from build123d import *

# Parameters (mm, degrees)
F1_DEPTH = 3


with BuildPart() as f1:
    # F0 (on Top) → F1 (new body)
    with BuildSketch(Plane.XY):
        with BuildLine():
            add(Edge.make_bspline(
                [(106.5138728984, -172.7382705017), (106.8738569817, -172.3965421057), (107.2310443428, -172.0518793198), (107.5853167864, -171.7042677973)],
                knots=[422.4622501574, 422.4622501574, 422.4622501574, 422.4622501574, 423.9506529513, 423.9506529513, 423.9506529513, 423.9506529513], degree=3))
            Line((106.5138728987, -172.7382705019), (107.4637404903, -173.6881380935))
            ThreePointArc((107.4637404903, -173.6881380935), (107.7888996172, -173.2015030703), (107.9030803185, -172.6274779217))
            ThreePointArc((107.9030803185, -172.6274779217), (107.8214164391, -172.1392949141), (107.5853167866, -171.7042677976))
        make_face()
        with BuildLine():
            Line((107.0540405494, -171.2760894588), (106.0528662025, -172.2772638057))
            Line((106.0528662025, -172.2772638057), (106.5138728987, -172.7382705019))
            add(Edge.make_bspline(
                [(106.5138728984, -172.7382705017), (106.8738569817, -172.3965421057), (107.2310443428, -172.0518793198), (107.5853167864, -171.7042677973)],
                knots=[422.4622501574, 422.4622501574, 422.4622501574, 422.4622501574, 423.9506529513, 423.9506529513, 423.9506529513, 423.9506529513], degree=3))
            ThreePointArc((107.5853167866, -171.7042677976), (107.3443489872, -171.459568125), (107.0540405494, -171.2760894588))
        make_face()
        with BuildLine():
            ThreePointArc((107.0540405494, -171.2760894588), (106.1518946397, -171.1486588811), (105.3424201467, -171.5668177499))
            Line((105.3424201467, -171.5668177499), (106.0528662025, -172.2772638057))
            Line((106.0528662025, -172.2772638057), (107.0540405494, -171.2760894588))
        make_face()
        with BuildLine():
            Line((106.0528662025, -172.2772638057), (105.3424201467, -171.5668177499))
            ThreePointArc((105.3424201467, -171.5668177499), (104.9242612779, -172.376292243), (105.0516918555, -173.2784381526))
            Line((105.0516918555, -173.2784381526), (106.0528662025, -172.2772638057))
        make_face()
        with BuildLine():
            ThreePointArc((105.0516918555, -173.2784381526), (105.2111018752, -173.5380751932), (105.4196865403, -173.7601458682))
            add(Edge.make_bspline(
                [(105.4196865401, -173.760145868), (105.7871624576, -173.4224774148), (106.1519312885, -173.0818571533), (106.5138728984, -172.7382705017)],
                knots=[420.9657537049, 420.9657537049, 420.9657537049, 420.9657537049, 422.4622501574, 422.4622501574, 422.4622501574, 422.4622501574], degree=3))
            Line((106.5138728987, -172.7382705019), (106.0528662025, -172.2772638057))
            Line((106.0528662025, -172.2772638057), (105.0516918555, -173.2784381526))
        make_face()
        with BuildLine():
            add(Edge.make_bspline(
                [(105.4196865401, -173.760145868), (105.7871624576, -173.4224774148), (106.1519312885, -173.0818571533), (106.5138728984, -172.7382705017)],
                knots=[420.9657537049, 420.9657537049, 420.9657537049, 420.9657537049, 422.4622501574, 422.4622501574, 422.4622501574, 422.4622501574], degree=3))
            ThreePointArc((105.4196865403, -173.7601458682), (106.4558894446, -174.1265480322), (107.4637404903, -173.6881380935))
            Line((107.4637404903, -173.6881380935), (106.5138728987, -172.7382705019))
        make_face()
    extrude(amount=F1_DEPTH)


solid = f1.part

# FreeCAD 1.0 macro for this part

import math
import FreeCAD as App
import Part
import Sketcher
Q = App.Units.Quantity

doc = App.newDocument("Part")
body = doc.addObject("PartDesign::Body", "Body")

# Sketch on XY plane
sketch1 = doc.addObject("Sketcher::SketchObject", "Sketch")
body.addObject(sketch1)
sketch1.AttachmentSupport = (doc.XY_Plane, [""])
sketch1.MapMode = "FlatFace"
sketch1.addGeometry([
    Part.ArcOfCircle(Part.Circle(App.Vector(106.4, -172.6, 0), App.Vector(0, 0, 1), 1.5), math.radians(0), math.radians(38)),  # 0
    Part.ArcOfCircle(Part.Circle(App.Vector(106.4, -172.6, 0), App.Vector(0, 0, 1), 1.5), math.radians(38), math.radians(64)),  # 1
    Part.ArcOfCircle(Part.Circle(App.Vector(106.4, -172.6, 0), App.Vector(0, 0, 1), 1.5), math.radians(64), math.radians(135)),  # 2
    Part.ArcOfCircle(Part.Circle(App.Vector(106.4, -172.6, 0), App.Vector(0, 0, 1), 1.5), math.radians(135), math.radians(206)),  # 3
    Part.ArcOfCircle(Part.Circle(App.Vector(106.4, -172.6, 0), App.Vector(0, 0, 1), 1.5), math.radians(-154), math.radians(-131)),  # 4
    Part.ArcOfCircle(Part.Circle(App.Vector(106.4, -172.6, 0), App.Vector(0, 0, 1), 1.5), math.radians(-131), math.radians(-45)),  # 5
    Part.ArcOfCircle(Part.Circle(App.Vector(106.4, -172.6, 0), App.Vector(0, 0, 1), 1.5), math.radians(-45), math.radians(0)),  # 6
], False)
sketch1.addConstraint([
    Sketcher.Constraint("Tangent", 0, 2, 1, 1),
    Sketcher.Constraint("Tangent", 1, 2, 2, 1),
    Sketcher.Constraint("Tangent", 2, 2, 3, 1),
    Sketcher.Constraint("Tangent", 3, 2, 4, 1),
    Sketcher.Constraint("Tangent", 4, 2, 5, 1),
    Sketcher.Constraint("Tangent", 5, 2, 6, 1),
    Sketcher.Constraint("Tangent", 6, 2, 0, 1),
    Sketcher.Constraint("Coincident", 2, 3, 0, 3),
    Sketcher.Constraint("Coincident", 4, 3, 0, 3),
    Sketcher.Constraint("Horizontal", 5, 3, 6, 2),
    Sketcher.Constraint("Radius", 0, Q("1.5 mm")),
    Sketcher.Constraint("DistanceX", -1, 1, 0, 3, Q("106.40308 mm")),
    Sketcher.Constraint("DistanceX", -1, 1, 1, 2, Q("107.054041 mm")),
    Sketcher.Constraint("DistanceY", 1, 2, -1, 1, Q("171.276089 mm")),
    Sketcher.Constraint("DistanceX", -1, 1, 2, 2, Q("105.34242 mm")),
    Sketcher.Constraint("DistanceX", -1, 1, 3, 2, Q("105.051692 mm")),
    Sketcher.Constraint("DistanceX", -1, 1, 5, 2, Q("107.46374 mm")),
    Sketcher.Constraint("DistanceY", 1, 3, 0, 2, Q("0.92321 mm")),
    Sketcher.Constraint("DistanceX", -1, 1, 4, 2, Q("105.419687 mm")),
])
pad1 = doc.addObject("PartDesign::Pad", "Pad")
body.addObject(pad1)
pad1.Profile = sketch1
pad1.Length = 3

doc.recompute()
